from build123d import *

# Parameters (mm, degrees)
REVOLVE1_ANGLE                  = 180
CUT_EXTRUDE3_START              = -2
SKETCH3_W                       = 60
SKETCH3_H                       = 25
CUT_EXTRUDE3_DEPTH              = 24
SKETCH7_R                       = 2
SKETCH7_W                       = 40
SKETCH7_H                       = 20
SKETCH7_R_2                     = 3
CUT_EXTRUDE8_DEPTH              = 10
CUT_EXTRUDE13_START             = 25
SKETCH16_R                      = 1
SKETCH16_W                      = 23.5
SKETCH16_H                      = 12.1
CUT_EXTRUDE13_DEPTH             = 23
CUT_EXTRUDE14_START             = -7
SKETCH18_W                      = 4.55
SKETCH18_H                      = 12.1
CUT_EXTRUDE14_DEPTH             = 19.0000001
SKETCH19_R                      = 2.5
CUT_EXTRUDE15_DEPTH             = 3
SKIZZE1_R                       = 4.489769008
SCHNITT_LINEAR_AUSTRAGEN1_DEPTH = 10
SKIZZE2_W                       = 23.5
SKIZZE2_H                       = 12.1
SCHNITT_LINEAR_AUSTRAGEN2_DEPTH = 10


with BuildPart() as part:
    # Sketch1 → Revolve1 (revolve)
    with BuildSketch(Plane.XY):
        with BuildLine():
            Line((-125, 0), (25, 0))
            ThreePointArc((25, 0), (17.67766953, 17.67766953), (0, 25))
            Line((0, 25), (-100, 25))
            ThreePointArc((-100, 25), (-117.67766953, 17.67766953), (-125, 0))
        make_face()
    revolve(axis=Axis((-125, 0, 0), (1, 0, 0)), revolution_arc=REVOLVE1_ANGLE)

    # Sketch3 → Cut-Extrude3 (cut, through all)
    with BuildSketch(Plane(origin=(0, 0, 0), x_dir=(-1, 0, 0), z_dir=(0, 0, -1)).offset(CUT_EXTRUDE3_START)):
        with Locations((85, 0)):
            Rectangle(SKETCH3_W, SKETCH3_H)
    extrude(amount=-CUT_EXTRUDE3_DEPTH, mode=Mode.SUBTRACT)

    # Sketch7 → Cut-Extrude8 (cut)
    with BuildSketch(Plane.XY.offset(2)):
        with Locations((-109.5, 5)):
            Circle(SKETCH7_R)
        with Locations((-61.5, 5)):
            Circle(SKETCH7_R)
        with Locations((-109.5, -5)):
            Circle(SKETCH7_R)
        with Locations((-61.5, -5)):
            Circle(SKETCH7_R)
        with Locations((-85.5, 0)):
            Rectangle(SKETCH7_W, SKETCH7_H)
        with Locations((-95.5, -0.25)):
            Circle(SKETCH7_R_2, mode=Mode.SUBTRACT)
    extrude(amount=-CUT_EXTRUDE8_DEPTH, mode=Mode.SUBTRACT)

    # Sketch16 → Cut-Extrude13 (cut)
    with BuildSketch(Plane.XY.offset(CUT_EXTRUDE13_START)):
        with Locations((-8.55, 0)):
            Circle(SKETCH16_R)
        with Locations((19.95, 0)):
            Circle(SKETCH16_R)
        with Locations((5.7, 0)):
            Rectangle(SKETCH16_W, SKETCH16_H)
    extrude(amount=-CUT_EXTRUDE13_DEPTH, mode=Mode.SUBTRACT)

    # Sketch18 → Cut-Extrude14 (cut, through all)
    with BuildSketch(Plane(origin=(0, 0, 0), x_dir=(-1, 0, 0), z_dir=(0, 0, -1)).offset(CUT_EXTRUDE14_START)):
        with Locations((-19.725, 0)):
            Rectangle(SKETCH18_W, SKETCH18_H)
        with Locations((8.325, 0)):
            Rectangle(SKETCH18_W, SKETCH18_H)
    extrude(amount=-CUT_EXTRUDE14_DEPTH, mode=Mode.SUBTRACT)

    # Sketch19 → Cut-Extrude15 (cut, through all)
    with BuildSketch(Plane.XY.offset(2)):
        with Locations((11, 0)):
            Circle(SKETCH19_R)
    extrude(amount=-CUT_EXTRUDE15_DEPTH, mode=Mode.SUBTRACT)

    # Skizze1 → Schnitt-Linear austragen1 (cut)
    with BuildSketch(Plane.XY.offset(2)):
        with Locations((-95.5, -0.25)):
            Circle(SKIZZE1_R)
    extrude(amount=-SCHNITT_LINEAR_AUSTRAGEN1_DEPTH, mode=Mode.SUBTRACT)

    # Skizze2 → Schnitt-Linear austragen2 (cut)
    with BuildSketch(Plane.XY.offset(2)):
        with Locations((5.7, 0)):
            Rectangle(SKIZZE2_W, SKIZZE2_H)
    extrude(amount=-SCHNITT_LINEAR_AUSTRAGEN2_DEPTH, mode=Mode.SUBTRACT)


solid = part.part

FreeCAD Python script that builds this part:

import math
import FreeCAD as App
import Part
import Sketcher
from FreeCAD import Vector
Q = App.Units.Quantity


def add_polygon(sketch, points):
    """Adds a closed chain of lines whose ends are joined by coincident constraints."""
    first, n = sketch.GeometryCount, len(points)
    for a, b in zip(points, points[1:] + points[:1]):
        sketch.addGeometry(Part.LineSegment(App.Vector(*a, 0), App.Vector(*b, 0)), False)
    for i in range(n):
        sketch.addConstraint(Sketcher.Constraint("Coincident", first + i, 2, first + (i + 1) % n, 1))

doc = App.newDocument("Part")
params = doc.addObject("Spreadsheet::Sheet", "Params")
for row, (alias, value) in enumerate([
    ("sketch1_radius", "25 mm"),
    ("sketch1_width", "150 mm"),
    ("revolution_angle", "180 deg"),
    ("sketch2_width", "60 mm"),
    ("sketch2_height", "25 mm"),
    ("sketch3_diameter", "4 mm"),
    ("sketch3_diameter2", "6 mm"),
    ("sketch3_width", "40 mm"),
    ("sketch3_height", "20 mm"),
    ("pocket2_length", "10 mm"),
    ("sketch4_diameter", "2 mm"),
    ("sketch4_width", "23.5 mm"),
    ("sketch4_height", "12.1 mm"),
    ("pocket3_length", "23 mm"),
    ("sketch5_height", "12.1 mm"),
    ("sketch5_width", "4.55 mm"),
    ("sketch6_diameter", "5 mm"),
    ("pocket6_length", "10 mm"),
    ("sketch8_width", "23.5 mm"),
    ("sketch8_height", "12.1 mm"),
    ("pocket7_length", "10 mm"),
], start=1):
    params.set(f"A{row}", alias)
    params.set(f"B{row}", "=" + value)
    params.setAlias(f"B{row}", alias)

body = doc.addObject("PartDesign::Body", "Body")
body.AllowCompound = True

# Sketch on XY plane
sketch1 = body.newObject("Sketcher::SketchObject", "Sketch")
sketch1.AttachmentSupport = (doc.getObject("XY_Plane"), [""])
sketch1.MapMode = "FlatFace"
sketch1.addGeometry([
    Part.LineSegment(Vector(-125, 0, 0), Vector(25, 0, 0)),
    Part.ArcOfCircle(Part.Circle(Vector(0, 0, 0), Vector(0, 0, 1), 25), math.radians(0), math.radians(90)),
    Part.LineSegment(Vector(0, 25, 0), Vector(-100, 25, 0)),
    Part.ArcOfCircle(Part.Circle(Vector(-100, 0, 0), Vector(0, 0, 1), 25), math.radians(90), math.radians(180)),
], False)
sketch1.addConstraint([
    Sketcher.Constraint("Coincident", 0, 2, 1, 1),
    Sketcher.Constraint("Tangent", 1, 2, 2, 1),
    Sketcher.Constraint("Tangent", 2, 2, 3, 1),
    Sketcher.Constraint("Coincident", 3, 2, 0, 1),
    Sketcher.Constraint("Horizontal", 0),
    Sketcher.Constraint("Horizontal", 2),
    Sketcher.Constraint("Coincident", 1, 3, -1, 1),
    Sketcher.Constraint("Equal", 1, 3),
    Sketcher.Constraint("PointOnObject", 0, 2, -1),
    Sketcher.Constraint("Radius", 1, Q("25 mm")),
    Sketcher.Constraint("DistanceX", 0, 1, 0, 2, Q("150 mm")),
])
sketch1.setExpression("Constraints[9]", "Params.sketch1_radius")
sketch1.setExpression("Constraints[10]", "Params.sketch1_width")
revolution = body.newObject("PartDesign::Revolution", "Revolution")
revolution.Profile = sketch1
revolution.ReferenceAxis = (sketch1, ["H_Axis"])
revolution.setExpression("Angle", "Params.revolution_angle")

# Sketch on XY plane
sketch2 = body.newObject("Sketcher::SketchObject", "Sketch001")
sketch2.AttachmentSupport = (doc.getObject("XY_Plane"), [""])
sketch2.MapMode = "FlatFace"
sketch2.AttachmentOffset = App.Placement(Vector(0, 0, 2), App.Rotation())
add_polygon(sketch2, [(-55, 12.5), (-55, -12.5), (-115, -12.5), (-115, 12.5)])  # lines 0-3
sketch2.addConstraint([
    Sketcher.Constraint("Vertical", 0),
    Sketcher.Constraint("Horizontal", 1),
    Sketcher.Constraint("Vertical", 2),
    Sketcher.Constraint("Horizontal", 3),
    Sketcher.Constraint("DistanceX", 1, 2, 1, 1, Q("60 mm")),
    Sketcher.Constraint("DistanceY", 0, 2, 0, 1, Q("25 mm")),
    Sketcher.Constraint("DistanceX", 0, 2, -1, 1, Q("55 mm")),
    Sketcher.Constraint("DistanceY", 0, 2, -1, 1, Q("12.5 mm")),
])
sketch2.setExpression("Constraints[8]", "Params.sketch2_width")
sketch2.setExpression("Constraints[9]", "Params.sketch2_height")
pocket1 = body.newObject("PartDesign::Pocket", "Pocket")
pocket1.Profile = sketch2
pocket1.Type = "ThroughAll"
pocket1.Reversed = True

# Sketch on XY plane
sketch3 = body.newObject("Sketcher::SketchObject", "Sketch002")
sketch3.AttachmentSupport = (doc.getObject("XY_Plane"), [""])
sketch3.MapMode = "FlatFace"
sketch3.AttachmentOffset = App.Placement(Vector(0, 0, 2), App.Rotation())
sketch3.addGeometry(Part.Circle(Vector(-109.5, 5, 0), Vector(0, 0, 1), 2), False)  # 0
sketch3.addGeometry(Part.Circle(Vector(-61.5, 5, 0), Vector(0, 0, 1), 2), False)  # 1
sketch3.addGeometry(Part.Circle(Vector(-109.5, -5, 0), Vector(0, 0, 1), 2), False)  # 2
sketch3.addGeometry(Part.Circle(Vector(-61.5, -5, 0), Vector(0, 0, 1), 2), False)  # 3
add_polygon(sketch3, [(-105.5, 10), (-105.5, -10), (-65.5, -10), (-65.5, 10)])  # lines 4-7
sketch3.addGeometry(Part.Circle(Vector(-95.5, -0.25, 0), Vector(0, 0, 1), 3), False)  # 8
sketch3.addConstraint([
    Sketcher.Constraint("Vertical", 4),
    Sketcher.Constraint("Horizontal", 5),
    Sketcher.Constraint("Vertical", 6),
    Sketcher.Constraint("Horizontal", 7),
    Sketcher.Constraint("Equal", 0, 1),
    Sketcher.Constraint("Equal", 1, 2),
    Sketcher.Constraint("Equal", 2, 3),
    Sketcher.Constraint("Symmetric", 0, 3, 2, 3, -1),
    Sketcher.Constraint("Symmetric", 1, 3, 3, 3, -1),
    Sketcher.Constraint("Horizontal", 0, 3, 1, 3),
    Sketcher.Constraint("Diameter", 0, Q("4 mm")),
    Sketcher.Constraint("Diameter", 8, Q("6 mm")),
    Sketcher.Constraint("DistanceX", 5, 1, 5, 2, Q("40 mm")),
    Sketcher.Constraint("DistanceY", 4, 2, 4, 1, Q("20 mm")),
    Sketcher.Constraint("DistanceY", -1, 1, 0, 3, Q("5 mm")),
    Sketcher.Constraint("DistanceY", 4, 2, -1, 1, Q("10 mm")),
    Sketcher.Constraint("DistanceX", 0, 3, 1, 3, Q("48 mm")),
    Sketcher.Constraint("DistanceX", 2, 3, 8, 3, Q("14 mm")),
    Sketcher.Constraint("DistanceX", 2, 3, 4, 2, Q("4 mm")),
    Sketcher.Constraint("DistanceX", 0, 3, -1, 1, Q("109.5 mm")),
    Sketcher.Constraint("DistanceY", 8, 3, -1, 1, Q("0.25 mm")),
])
sketch3.setExpression("Constraints[14]", "Params.sketch3_diameter")
sketch3.setExpression("Constraints[15]", "Params.sketch3_diameter2")
sketch3.setExpression("Constraints[16]", "Params.sketch3_width")
sketch3.setExpression("Constraints[17]", "Params.sketch3_height")
pocket2 = body.newObject("PartDesign::Pocket", "Pocket001")
pocket2.Profile = sketch3
pocket2.setExpression("Length", "Params.pocket2_length")

# Sketch on XY plane
sketch4 = body.newObject("Sketcher::SketchObject", "Sketch003")
sketch4.AttachmentSupport = (doc.getObject("XY_Plane"), [""])
sketch4.MapMode = "FlatFace"
sketch4.AttachmentOffset = App.Placement(Vector(0, 0, 25), App.Rotation())
sketch4.addGeometry(Part.Circle(Vector(-8.55, 0, 0), Vector(0, 0, 1), 1), False)  # 0
sketch4.addGeometry(Part.Circle(Vector(19.95, 0, 0), Vector(0, 0, 1), 1), False)  # 1
add_polygon(sketch4, [(-6.05, 6.05), (-6.05, -6.05), (17.45, -6.05), (17.45, 6.05)])  # lines 2-5
sketch4.addConstraint([
    Sketcher.Constraint("Vertical", 2),
    Sketcher.Constraint("Horizontal", 3),
    Sketcher.Constraint("Vertical", 4),
    Sketcher.Constraint("Horizontal", 5),
    Sketcher.Constraint("Equal", 0, 1),
    Sketcher.Constraint("PointOnObject", 0, 3, -1),
    Sketcher.Constraint("PointOnObject", 1, 3, -1),
    Sketcher.Constraint("Diameter", 0, Q("2 mm")),
    Sketcher.Constraint("DistanceX", 3, 1, 3, 2, Q("23.5 mm")),
    Sketcher.Constraint("DistanceY", 2, 2, 2, 1, Q("12.1 mm")),
    Sketcher.Constraint("DistanceX", 2, 2, 1, 3, Q("26 mm")),
    Sketcher.Constraint("DistanceX", 0, 3, 3, 2, Q("26 mm")),
    Sketcher.Constraint("DistanceX", 0, 3, -1, 1, Q("8.55 mm")),
    Sketcher.Constraint("DistanceY", 2, 2, -1, 1, Q("6.05 mm")),
])
sketch4.setExpression("Constraints[11]", "Params.sketch4_diameter")
sketch4.setExpression("Constraints[12]", "Params.sketch4_width")
sketch4.setExpression("Constraints[13]", "Params.sketch4_height")
pocket3 = body.newObject("PartDesign::Pocket", "Pocket002")
pocket3.Profile = sketch4
pocket3.setExpression("Length", "Params.pocket3_length")

# Sketch on XY plane
sketch5 = body.newObject("Sketcher::SketchObject", "Sketch004")
sketch5.AttachmentSupport = (doc.getObject("XY_Plane"), [""])
sketch5.MapMode = "FlatFace"
sketch5.AttachmentOffset = App.Placement(Vector(0, 0, 7), App.Rotation())
add_polygon(sketch5, [(22, 6.05), (22, -6.05), (17.45, -6.05), (17.45, 6.05)])  # lines 0-3
add_polygon(sketch5, [(-6.05, 6.05), (-6.05, -6.05), (-10.6, -6.05), (-10.6, 6.05)])  # lines 4-7
sketch5.addConstraint([
    Sketcher.Constraint("Vertical", 0),
    Sketcher.Constraint("Horizontal", 1),
    Sketcher.Constraint("Vertical", 2),
    Sketcher.Constraint("Horizontal", 3),
    Sketcher.Constraint("Vertical", 4),
    Sketcher.Constraint("Horizontal", 5),
    Sketcher.Constraint("Vertical", 6),
    Sketcher.Constraint("Horizontal", 7),
    Sketcher.Constraint("Horizontal", 1, 2, 4, 2),
    Sketcher.Constraint("Horizontal", 3, 2, 6, 2),
    Sketcher.Constraint("Equal", 3, 5),
    Sketcher.Constraint("DistanceY", 0, 2, 0, 1, Q("12.1 mm")),
    Sketcher.Constraint("DistanceX", -1, 1, 0, 2, Q("22 mm")),
    Sketcher.Constraint("DistanceX", 1, 2, 1, 1, Q("4.55 mm")),
    Sketcher.Constraint("DistanceX", 5, 2, -1, 1, Q("10.6 mm")),
    Sketcher.Constraint("DistanceY", 0, 2, -1, 1, Q("6.05 mm")),
])
sketch5.setExpression("Constraints[19]", "Params.sketch5_height")
sketch5.setExpression("Constraints[21]", "Params.sketch5_width")
pocket4 = body.newObject("PartDesign::Pocket", "Pocket003")
pocket4.Profile = sketch5
pocket4.Type = "ThroughAll"
pocket4.Reversed = True

# Sketch on XY plane
sketch6 = body.newObject("Sketcher::SketchObject", "Sketch005")
sketch6.AttachmentSupport = (doc.getObject("XY_Plane"), [""])
sketch6.MapMode = "FlatFace"
sketch6.AttachmentOffset = App.Placement(Vector(0, 0, 2), App.Rotation())
sketch6.addGeometry(Part.Circle(Vector(11, 0, 0), Vector(0, 0, 1), 2.5), False)
sketch6.addConstraint([
    Sketcher.Constraint("PointOnObject", 0, 3, -1),
    Sketcher.Constraint("Diameter", 0, Q("5 mm")),
    Sketcher.Constraint("DistanceX", -1, 1, 0, 3, Q("11 mm")),
])
sketch6.setExpression("Constraints[1]", "Params.sketch6_diameter")
pocket5 = body.newObject("PartDesign::Pocket", "Pocket004")
pocket5.Profile = sketch6
pocket5.Type = "ThroughAll"

# Sketch on XY plane
sketch7 = body.newObject("Sketcher::SketchObject", "Sketch006")
sketch7.AttachmentSupport = (doc.getObject("XY_Plane"), [""])
sketch7.MapMode = "FlatFace"
sketch7.AttachmentOffset = App.Placement(Vector(0, 0, 2), App.Rotation())
sketch7.addGeometry(Part.Circle(Vector(-95.5, -0.25, 0), Vector(0, 0, 1), 4.489769), False)
sketch7.addConstraint([
    Sketcher.Constraint("DistanceX", 0, 3, -1, 1, Q("95.5 mm")),
    Sketcher.Constraint("Diameter", 0, Q("8.979538 mm")),
    Sketcher.Constraint("DistanceY", 0, 3, -1, 1, Q("0.25 mm")),
])
pocket6 = body.newObject("PartDesign::Pocket", "Pocket005")
pocket6.Profile = sketch7
pocket6.setExpression("Length", "Params.pocket6_length")

# Sketch on XY plane
sketch8 = body.newObject("Sketcher::SketchObject", "Sketch007")
sketch8.AttachmentSupport = (doc.getObject("XY_Plane"), [""])
sketch8.MapMode = "FlatFace"
sketch8.AttachmentOffset = App.Placement(Vector(0, 0, 2), App.Rotation())
add_polygon(sketch8, [(-6.05, 6.05), (-6.05, -6.05), (17.45, -6.05), (17.45, 6.05)])  # lines 0-3
sketch8.addConstraint([
    Sketcher.Constraint("Vertical", 0),
    Sketcher.Constraint("Horizontal", 1),
    Sketcher.Constraint("Vertical", 2),
    Sketcher.Constraint("Horizontal", 3),
    Sketcher.Constraint("DistanceX", 1, 1, 1, 2, Q("23.5 mm")),
    Sketcher.Constraint("DistanceY", 0, 2, 0, 1, Q("12.1 mm")),
    Sketcher.Constraint("DistanceX", 0, 2, -1, 1, Q("6.05 mm")),
    Sketcher.Constraint("DistanceY", 0, 2, -1, 1, Q("6.05 mm")),
])
sketch8.setExpression("Constraints[8]", "Params.sketch8_width")
sketch8.setExpression("Constraints[9]", "Params.sketch8_height")
pocket7 = body.newObject("PartDesign::Pocket", "Pocket006")
pocket7.Profile = sketch8
pocket7.setExpression("Length", "Params.pocket7_length")

doc.recompute()
